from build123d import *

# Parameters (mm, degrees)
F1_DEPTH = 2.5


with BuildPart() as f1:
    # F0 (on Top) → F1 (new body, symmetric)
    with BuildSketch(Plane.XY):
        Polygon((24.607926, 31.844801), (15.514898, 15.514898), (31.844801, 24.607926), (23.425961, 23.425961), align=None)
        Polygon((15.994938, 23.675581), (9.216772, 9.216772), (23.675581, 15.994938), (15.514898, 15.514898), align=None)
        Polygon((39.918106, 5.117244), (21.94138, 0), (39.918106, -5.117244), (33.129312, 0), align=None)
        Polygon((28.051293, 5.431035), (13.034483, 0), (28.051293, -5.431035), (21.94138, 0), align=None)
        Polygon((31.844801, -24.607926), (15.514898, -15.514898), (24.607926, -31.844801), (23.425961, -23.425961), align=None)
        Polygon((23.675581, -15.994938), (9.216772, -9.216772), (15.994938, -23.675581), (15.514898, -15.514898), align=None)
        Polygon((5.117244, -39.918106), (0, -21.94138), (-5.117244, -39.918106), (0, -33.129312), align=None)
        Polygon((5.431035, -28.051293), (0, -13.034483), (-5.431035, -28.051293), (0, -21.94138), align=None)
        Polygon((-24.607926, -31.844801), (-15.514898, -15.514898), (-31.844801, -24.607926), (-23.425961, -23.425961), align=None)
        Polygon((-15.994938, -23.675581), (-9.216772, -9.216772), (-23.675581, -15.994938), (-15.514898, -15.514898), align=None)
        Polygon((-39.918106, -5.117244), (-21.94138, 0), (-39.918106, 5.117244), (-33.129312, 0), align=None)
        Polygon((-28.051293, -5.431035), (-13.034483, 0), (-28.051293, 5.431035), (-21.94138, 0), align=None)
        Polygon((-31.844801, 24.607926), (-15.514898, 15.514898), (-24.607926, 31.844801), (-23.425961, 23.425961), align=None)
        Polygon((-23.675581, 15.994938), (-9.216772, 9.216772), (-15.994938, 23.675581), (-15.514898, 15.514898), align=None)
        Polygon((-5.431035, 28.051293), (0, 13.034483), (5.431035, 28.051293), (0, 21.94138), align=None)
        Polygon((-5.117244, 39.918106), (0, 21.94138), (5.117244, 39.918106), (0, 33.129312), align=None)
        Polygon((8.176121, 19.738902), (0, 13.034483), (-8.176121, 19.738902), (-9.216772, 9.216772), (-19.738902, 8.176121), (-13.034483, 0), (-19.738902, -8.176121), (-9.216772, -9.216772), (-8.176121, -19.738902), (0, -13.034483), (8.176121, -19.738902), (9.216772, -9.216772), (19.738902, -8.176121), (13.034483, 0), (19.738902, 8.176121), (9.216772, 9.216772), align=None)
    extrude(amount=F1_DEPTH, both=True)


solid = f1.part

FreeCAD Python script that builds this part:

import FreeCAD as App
import Part
import Sketcher
Q = App.Units.Quantity


def add_polygon(sketch, points):
    """Adds a closed chain of lines whose ends are joined by coincident constraints."""
    first, n = sketch.GeometryCount, len(points)
    for a, b in zip(points, points[1:] + points[:1]):
        sketch.addGeometry(Part.LineSegment(App.Vector(*a, 0), App.Vector(*b, 0)), False)
    for i in range(n):
        sketch.addConstraint(Sketcher.Constraint("Coincident", first + i, 2, first + (i + 1) % n, 1))

doc = App.newDocument("Part")
params = doc.addObject("Spreadsheet::Sheet", "Params")
for row, (alias, value) in enumerate([
    ("pad1_length", "5 mm"),
], start=1):
    params.set(f"A{row}", alias)
    params.set(f"B{row}", "=" + value)
    params.setAlias(f"B{row}", alias)

body = doc.addObject("PartDesign::Body", "Body")
body.AllowCompound = True

# Sketch on XY plane
sketch1 = body.newObject("Sketcher::SketchObject", "Sketch")
sketch1.AttachmentSupport = (doc.getObject("XY_Plane"), [""])
sketch1.MapMode = "FlatFace"
add_polygon(sketch1, [(24.607926, 31.844801), (15.514898, 15.514898), (31.844801, 24.607926), (23.425961, 23.425961)])  # lines 0-3
add_polygon(sketch1, [(15.994938, 23.675581), (9.216772, 9.216772), (23.675581, 15.994938), (15.514898, 15.514898)])  # lines 4-7
add_polygon(sketch1, [(39.918106, 5.117244), (21.94138, 0), (39.918106, -5.117244), (33.129312, 0)])  # lines 8-11
add_polygon(sketch1, [(28.051293, 5.431035), (13.034483, 0), (28.051293, -5.431035), (21.94138, 0)])  # lines 12-15
add_polygon(sketch1, [(31.844801, -24.607926), (15.514898, -15.514898), (24.607926, -31.844801), (23.425961, -23.425961)])  # lines 16-19
add_polygon(sketch1, [(23.675581, -15.994938), (9.216772, -9.216772), (15.994938, -23.675581), (15.514898, -15.514898)])  # lines 20-23
add_polygon(sketch1, [(5.117244, -39.918106), (0, -21.94138), (-5.117244, -39.918106), (0, -33.129312)])  # lines 24-27
add_polygon(sketch1, [(5.431035, -28.051293), (0, -13.034483), (-5.431035, -28.051293), (0, -21.94138)])  # lines 28-31
add_polygon(sketch1, [(-24.607926, -31.844801), (-15.514898, -15.514898), (-31.844801, -24.607926), (-23.425961, -23.425961)])  # lines 32-35
add_polygon(sketch1, [(-15.994938, -23.675581), (-9.216772, -9.216772), (-23.675581, -15.994938), (-15.514898, -15.514898)])  # lines 36-39
add_polygon(sketch1, [(-39.918106, -5.117244), (-21.94138, 0), (-39.918106, 5.117244), (-33.129312, 0)])  # lines 40-43
add_polygon(sketch1, [(-28.051293, -5.431035), (-13.034483, 0), (-28.051293, 5.431035), (-21.94138, 0)])  # lines 44-47
add_polygon(sketch1, [(-31.844801, 24.607926), (-15.514898, 15.514898), (-24.607926, 31.844801), (-23.425961, 23.425961)])  # lines 48-51
add_polygon(sketch1, [(-23.675581, 15.994938), (-9.216772, 9.216772), (-15.994938, 23.675581), (-15.514898, 15.514898)])  # lines 52-55
add_polygon(sketch1, [(-5.431035, 28.051293), (0, 13.034483), (5.431035, 28.051293), (0, 21.94138)])  # lines 56-59
add_polygon(sketch1, [(-5.117244, 39.918106), (0, 21.94138), (5.117244, 39.918106), (0, 33.129312)])  # lines 60-63
add_polygon(sketch1, [(8.176121, 19.738902), (0, 13.034483), (-8.176121, 19.738902), (-9.216772, 9.216772), (-19.738902, 8.176121), (-13.034483, 0), (-19.738902, -8.176121), (-9.216772, -9.216772), (-8.176121, -19.738902), (0, -13.034483), (8.176121, -19.738902), (9.216772, -9.216772), (19.738902, -8.176121), (13.034483, 0), (19.738902, 8.176121), (9.216772, 9.216772)])  # lines 64-79
sketch1.addConstraint([
    Sketcher.Constraint("Coincident", 6, 2, 0, 2),
    Sketcher.Constraint("Coincident", 14, 2, 8, 2),
    Sketcher.Constraint("Coincident", 22, 2, 16, 2),
    Sketcher.Constraint("Coincident", 30, 2, 24, 2),
    Sketcher.Constraint("Coincident", 38, 2, 32, 2),
    Sketcher.Constraint("Coincident", 46, 2, 40, 2),
    Sketcher.Constraint("Coincident", 54, 2, 48, 2),
    Sketcher.Constraint("Coincident", 60, 2, 58, 2),
    Sketcher.Constraint("Coincident", 64, 2, 56, 2),
    Sketcher.Constraint("Coincident", 66, 2, 52, 2),
    Sketcher.Constraint("Coincident", 68, 2, 44, 2),
    Sketcher.Constraint("Coincident", 70, 2, 36, 2),
    Sketcher.Constraint("Coincident", 72, 2, 28, 2),
    Sketcher.Constraint("Coincident", 74, 2, 20, 2),
    Sketcher.Constraint("Coincident", 76, 2, 12, 2),
    Sketcher.Constraint("Coincident", 78, 2, 4, 2),
    Sketcher.Constraint("Symmetric", 0, 2, 32, 2, -1, 1),
    Sketcher.Constraint("Symmetric", 1, 2, 33, 2, -1, 1),
    Sketcher.Constraint("Symmetric", 2, 2, 34, 2, -1, 1),
    Sketcher.Constraint("Symmetric", 3, 2, 35, 2, -1, 1),
    Sketcher.Constraint("Symmetric", 4, 2, 36, 2, -1, 1),
    Sketcher.Constraint("Symmetric", 5, 2, 37, 2, -1, 1),
    Sketcher.Constraint("Symmetric", 7, 2, 39, 2, -1, 1),
    Sketcher.Constraint("Symmetric", 8, 2, 40, 2, -1, 1),
    Sketcher.Constraint("Symmetric", 9, 2, 41, 2, -1, 1),
    Sketcher.Constraint("Symmetric", 10, 2, 42, 2, -1, 1),
    Sketcher.Constraint("Symmetric", 11, 2, 43, 2, -1, 1),
    Sketcher.Constraint("Symmetric", 12, 2, 44, 2, -1, 1),
    Sketcher.Constraint("Symmetric", 13, 2, 45, 2, -1, 1),
    Sketcher.Constraint("Symmetric", 15, 2, 47, 2, -1, 1),
    Sketcher.Constraint("Symmetric", 16, 2, 48, 2, -1, 1),
    Sketcher.Constraint("Symmetric", 17, 2, 49, 2, -1, 1),
    Sketcher.Constraint("Symmetric", 18, 2, 50, 2, -1, 1),
    Sketcher.Constraint("Symmetric", 19, 2, 51, 2, -1, 1),
    Sketcher.Constraint("Symmetric", 20, 2, 52, 2, -1, 1),
    Sketcher.Constraint("Symmetric", 21, 2, 53, 2, -1, 1),
    Sketcher.Constraint("Symmetric", 23, 2, 55, 2, -1, 1),
    Sketcher.Constraint("Symmetric", 28, 2, 56, 2, -1, 1),
    Sketcher.Constraint("Symmetric", 29, 2, 57, 2, -1, 1),
    Sketcher.Constraint("Symmetric", 24, 2, 58, 2, -1, 1),
    Sketcher.Constraint("Symmetric", 31, 2, 59, 2, -1, 1),
    Sketcher.Constraint("Symmetric", 25, 2, 61, 2, -1, 1),
    Sketcher.Constraint("Symmetric", 26, 2, 62, 2, -1, 1),
    Sketcher.Constraint("Symmetric", 27, 2, 63, 2, -1, 1),
    Sketcher.Constraint("Symmetric", 65, 2, 73, 2, -1, 1),
    Sketcher.Constraint("Symmetric", 67, 2, 75, 2, -1, 1),
    Sketcher.Constraint("Symmetric", 69, 2, 77, 2, -1, 1),
    Sketcher.Constraint("Symmetric", 71, 2, 79, 2, -1, 1),
    Sketcher.Constraint("Symmetric", 25, 2, 27, 2, -2),
    Sketcher.Constraint("Symmetric", 29, 2, 31, 2, -2),
    Sketcher.Constraint("Symmetric", 16, 2, 32, 2, -2),
    Sketcher.Constraint("Symmetric", 19, 2, 33, 2, -2),
    Sketcher.Constraint("Symmetric", 18, 2, 34, 2, -2),
    Sketcher.Constraint("Symmetric", 17, 2, 35, 2, -2),
    Sketcher.Constraint("Symmetric", 20, 2, 36, 2, -2),
    Sketcher.Constraint("Symmetric", 23, 2, 37, 2, -2),
    Sketcher.Constraint("Symmetric", 21, 2, 39, 2, -2),
    Sketcher.Constraint("Symmetric", 11, 2, 41, 2, -2),
    Sketcher.Constraint("Symmetric", 15, 2, 45, 2, -2),
    Sketcher.Constraint("Symmetric", 71, 2, 73, 2, -2),
    Sketcher.Constraint("Symmetric", 69, 2, 75, 2, -2),
    Sketcher.Constraint("PointOnObject", 8, 2, -1),
    Sketcher.Constraint("PointOnObject", 10, 2, -1),
    Sketcher.Constraint("PointOnObject", 12, 2, -1),
    Sketcher.Constraint("PointOnObject", 24, 2, -2),
    Sketcher.Constraint("PointOnObject", 26, 2, -2),
    Sketcher.Constraint("PointOnObject", 28, 2, -2),
    Sketcher.Constraint("Perpendicular", 0, 16),
    Sketcher.Constraint("Perpendicular", 2, 18),
    Sketcher.Constraint("Perpendicular", 4, 20),
    Sketcher.Constraint("Perpendicular", 6, 22),
    Sketcher.Constraint("Perpendicular", 8, 24),
    Sketcher.Constraint("Perpendicular", 10, 26),
    Sketcher.Constraint("Perpendicular", 12, 28),
    Sketcher.Constraint("Perpendicular", 14, 30),
    Sketcher.Constraint("Perpendicular", 64, 68),
    Sketcher.Constraint("Perpendicular", 66, 70),
    Sketcher.Constraint("Equal", 0, 1),
    Sketcher.Constraint("Equal", 4, 5),
    Sketcher.Constraint("Equal", 1, 8),
    Sketcher.Constraint("Equal", 3, 10),
    Sketcher.Constraint("Equal", 5, 12),
    Sketcher.Constraint("Equal", 7, 14),
    Sketcher.Constraint("Equal", 17, 24),
    Sketcher.Constraint("Equal", 21, 28),
    Sketcher.Constraint("Equal", 65, 66),
    Sketcher.Constraint("Equal", 66, 67),
    Sketcher.Constraint("Equal", 67, 68),
    Sketcher.Constraint("DistanceX", -1, 1, 1, 2, Q("31.844801 mm")),
    Sketcher.Constraint("DistanceY", -1, 1, 65, 2, Q("19.738902 mm")),
    Sketcher.Constraint("Distance", 4, Q("15.968741 mm")),
    Sketcher.Constraint("Distance", 6, Q("8.17479 mm")),
    Sketcher.Constraint("DistanceX", -1, 1, 2, 2, Q("23.425961 mm")),
    Sketcher.Constraint("DistanceX", -1, 1, 5, 2, Q("23.675581 mm")),
    Sketcher.Constraint("DistanceX", -1, 1, 8, 2, Q("21.94138 mm")),
    Sketcher.Constraint("DistanceX", 65, 2, -1, 1, Q("8.176121 mm")),
    Sketcher.Constraint("Distance", 0, Q("18.690877 mm")),
    Sketcher.Constraint("Distance", 2, Q("8.501406 mm")),
    Sketcher.Constraint("DistanceX", -1, 1, 9, 2, Q("39.918106 mm")),
])
pad1 = body.newObject("PartDesign::Pad", "Pad")
pad1.Profile = sketch1
pad1.setExpression("Length", "Params.pad1_length")
pad1.Midplane = True

doc.recompute()
